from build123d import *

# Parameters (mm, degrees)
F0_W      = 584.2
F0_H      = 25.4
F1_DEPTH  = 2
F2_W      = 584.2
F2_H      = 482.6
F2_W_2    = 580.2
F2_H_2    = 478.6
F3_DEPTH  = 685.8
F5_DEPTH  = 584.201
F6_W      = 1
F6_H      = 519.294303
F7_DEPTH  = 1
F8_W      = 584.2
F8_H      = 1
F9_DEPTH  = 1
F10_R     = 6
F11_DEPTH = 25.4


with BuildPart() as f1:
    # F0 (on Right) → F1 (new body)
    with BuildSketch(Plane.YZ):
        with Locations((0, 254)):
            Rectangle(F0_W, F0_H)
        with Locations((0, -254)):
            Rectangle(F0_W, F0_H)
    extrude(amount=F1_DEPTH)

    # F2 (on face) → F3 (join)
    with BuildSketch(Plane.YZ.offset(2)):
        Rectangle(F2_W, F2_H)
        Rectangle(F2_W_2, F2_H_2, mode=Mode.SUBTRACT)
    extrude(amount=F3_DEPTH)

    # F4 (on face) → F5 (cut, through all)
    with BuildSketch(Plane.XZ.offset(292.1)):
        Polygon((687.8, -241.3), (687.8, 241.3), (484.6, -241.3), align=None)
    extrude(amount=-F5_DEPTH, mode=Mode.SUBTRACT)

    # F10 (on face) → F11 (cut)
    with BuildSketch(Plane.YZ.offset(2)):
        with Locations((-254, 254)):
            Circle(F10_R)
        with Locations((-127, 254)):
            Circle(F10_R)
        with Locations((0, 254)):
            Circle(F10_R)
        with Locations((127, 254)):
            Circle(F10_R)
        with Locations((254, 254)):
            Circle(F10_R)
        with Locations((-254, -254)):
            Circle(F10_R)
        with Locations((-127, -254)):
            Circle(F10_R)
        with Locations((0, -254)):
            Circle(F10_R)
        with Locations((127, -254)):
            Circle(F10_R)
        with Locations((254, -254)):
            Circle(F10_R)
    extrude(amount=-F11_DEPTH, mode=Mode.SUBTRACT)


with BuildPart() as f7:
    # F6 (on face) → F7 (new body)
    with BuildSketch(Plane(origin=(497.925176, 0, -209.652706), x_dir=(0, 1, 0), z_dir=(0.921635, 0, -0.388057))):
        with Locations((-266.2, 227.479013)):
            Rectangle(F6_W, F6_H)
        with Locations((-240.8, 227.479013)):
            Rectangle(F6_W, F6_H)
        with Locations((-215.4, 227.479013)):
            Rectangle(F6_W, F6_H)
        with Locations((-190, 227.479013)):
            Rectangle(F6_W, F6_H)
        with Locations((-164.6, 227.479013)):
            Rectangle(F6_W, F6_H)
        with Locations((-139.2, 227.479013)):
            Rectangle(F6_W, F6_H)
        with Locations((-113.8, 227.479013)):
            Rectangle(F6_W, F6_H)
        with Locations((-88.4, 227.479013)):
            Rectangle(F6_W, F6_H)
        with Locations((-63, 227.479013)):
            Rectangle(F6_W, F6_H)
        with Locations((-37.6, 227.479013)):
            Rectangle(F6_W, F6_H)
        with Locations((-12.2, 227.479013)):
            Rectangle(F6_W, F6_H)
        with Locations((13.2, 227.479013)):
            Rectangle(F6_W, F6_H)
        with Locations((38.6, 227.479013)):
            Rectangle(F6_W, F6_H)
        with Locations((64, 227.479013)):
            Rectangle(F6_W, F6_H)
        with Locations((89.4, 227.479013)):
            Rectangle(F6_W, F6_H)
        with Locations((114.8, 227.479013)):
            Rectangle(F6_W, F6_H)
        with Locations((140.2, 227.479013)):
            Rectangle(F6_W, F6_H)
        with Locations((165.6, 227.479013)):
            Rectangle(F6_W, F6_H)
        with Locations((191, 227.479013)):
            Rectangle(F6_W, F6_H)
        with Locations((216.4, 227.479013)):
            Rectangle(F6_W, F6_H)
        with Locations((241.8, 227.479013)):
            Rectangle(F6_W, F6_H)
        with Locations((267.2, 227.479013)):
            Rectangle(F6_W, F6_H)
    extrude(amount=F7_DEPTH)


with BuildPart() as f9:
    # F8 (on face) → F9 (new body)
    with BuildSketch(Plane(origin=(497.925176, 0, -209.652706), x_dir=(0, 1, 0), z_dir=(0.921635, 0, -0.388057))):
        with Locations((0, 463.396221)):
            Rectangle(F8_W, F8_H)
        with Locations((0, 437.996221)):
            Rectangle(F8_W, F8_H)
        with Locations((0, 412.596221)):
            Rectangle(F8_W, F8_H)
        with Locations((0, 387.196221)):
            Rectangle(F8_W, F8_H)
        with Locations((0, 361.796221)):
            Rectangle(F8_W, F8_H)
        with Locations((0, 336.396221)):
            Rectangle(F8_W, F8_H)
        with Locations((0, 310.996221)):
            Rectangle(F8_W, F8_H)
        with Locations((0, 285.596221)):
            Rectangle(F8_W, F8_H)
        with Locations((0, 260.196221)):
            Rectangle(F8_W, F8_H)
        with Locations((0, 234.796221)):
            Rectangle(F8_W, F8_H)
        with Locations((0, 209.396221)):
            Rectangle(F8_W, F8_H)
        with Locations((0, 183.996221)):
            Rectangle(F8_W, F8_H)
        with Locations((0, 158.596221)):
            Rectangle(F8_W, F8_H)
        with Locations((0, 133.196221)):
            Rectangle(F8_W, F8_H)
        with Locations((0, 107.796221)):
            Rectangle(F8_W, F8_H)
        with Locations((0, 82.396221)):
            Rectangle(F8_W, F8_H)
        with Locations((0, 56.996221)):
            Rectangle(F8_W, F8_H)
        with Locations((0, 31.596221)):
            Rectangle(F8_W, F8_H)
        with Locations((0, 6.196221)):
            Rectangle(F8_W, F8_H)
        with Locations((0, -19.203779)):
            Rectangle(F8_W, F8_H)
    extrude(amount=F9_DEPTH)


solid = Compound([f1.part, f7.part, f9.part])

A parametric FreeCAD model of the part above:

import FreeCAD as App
import Part
import Sketcher
Q = App.Units.Quantity


def add_polygon(sketch, points):
    """Adds a closed chain of lines whose ends are joined by coincident constraints."""
    first, n = sketch.GeometryCount, len(points)
    for a, b in zip(points, points[1:] + points[:1]):
        sketch.addGeometry(Part.LineSegment(App.Vector(*a, 0), App.Vector(*b, 0)), False)
    for i in range(n):
        sketch.addConstraint(Sketcher.Constraint("Coincident", first + i, 2, first + (i + 1) % n, 1))

doc = App.newDocument("Part")
params = doc.addObject("Spreadsheet::Sheet", "Params")
for row, (alias, value) in enumerate([
    ("sketch1_width", "584.2 mm"),
    ("sketch1_height", "25.4 mm"),
    ("pad1_length", "2 mm"),
    ("sketch2_width", "584.2 mm"),
    ("sketch2_width2", "580.2 mm"),
    ("sketch2_height", "482.6 mm"),
    ("sketch2_height2", "478.6 mm"),
    ("pad2_length", "685.8 mm"),
    ("sketch3_width", "203.2 mm"),
    ("sketch3_height", "482.6 mm"),
    ("sketch4_diameter", "12 mm"),
    ("pocket2_length", "25.4 mm"),
    ("sketch5_width", "1 mm"),
    ("pad3_length", "1 mm"),
    ("sketch6_height", "1 mm"),
    ("sketch6_width", "584.2 mm"),
    ("pad4_length", "1 mm"),
], start=1):
    params.set(f"A{row}", alias)
    params.set(f"B{row}", "=" + value)
    params.setAlias(f"B{row}", alias)

body = doc.addObject("PartDesign::Body", "Body")
body.AllowCompound = True

# Sketch on YZ plane
sketch1 = body.newObject("Sketcher::SketchObject", "Sketch")
sketch1.AttachmentSupport = (doc.getObject("YZ_Plane"), [""])
sketch1.MapMode = "FlatFace"
add_polygon(sketch1, [(-292.1, 266.7), (-292.1, 241.3), (292.1, 241.3), (292.1, 266.7)])  # lines 0-3
add_polygon(sketch1, [(-292.1, -241.3), (-292.1, -266.7), (292.1, -266.7), (292.1, -241.3)])  # lines 4-7
sketch1.addConstraint([
    Sketcher.Constraint("Vertical", 0),
    Sketcher.Constraint("Horizontal", 1),
    Sketcher.Constraint("Vertical", 2),
    Sketcher.Constraint("Horizontal", 3),
    Sketcher.Constraint("Vertical", 4),
    Sketcher.Constraint("Horizontal", 5),
    Sketcher.Constraint("Vertical", 6),
    Sketcher.Constraint("Horizontal", 7),
    Sketcher.Constraint("Symmetric", 2, 2, 4, 2, -1, 1),
    Sketcher.Constraint("Symmetric", 0, 2, 6, 2, -1, 1),
    Sketcher.Constraint("Vertical", 3, 2, 4, 2),
    Sketcher.Constraint("DistanceX", 1, 1, 1, 2, Q("584.2 mm")),
    Sketcher.Constraint("DistanceY", 0, 2, 0, 1, Q("25.4 mm")),
    Sketcher.Constraint("DistanceY", 4, 2, 0, 2, Q("508 mm")),
])
sketch1.setExpression("Constraints[19]", "Params.sketch1_width")
sketch1.setExpression("Constraints[20]", "Params.sketch1_height")
pad1 = body.newObject("PartDesign::Pad", "Pad")
pad1.Profile = sketch1
pad1.setExpression("Length", "Params.pad1_length")

# Sketch on YZ plane
sketch2 = body.newObject("Sketcher::SketchObject", "Sketch001")
sketch2.AttachmentSupport = (doc.getObject("YZ_Plane"), [""])
sketch2.MapMode = "FlatFace"
sketch2.AttachmentOffset = App.Placement(App.Vector(0, 0, 2), App.Rotation())
add_polygon(sketch2, [(-292.1, 241.3), (-292.1, -241.3), (292.1, -241.3), (292.1, 241.3)])  # lines 0-3
add_polygon(sketch2, [(290.1, -239.3), (-290.1, -239.3), (-290.1, 239.3), (290.1, 239.3)])  # lines 4-7
sketch2.addConstraint([
    Sketcher.Constraint("Vertical", 0),
    Sketcher.Constraint("Horizontal", 1),
    Sketcher.Constraint("Vertical", 2),
    Sketcher.Constraint("Horizontal", 3),
    Sketcher.Constraint("Horizontal", 4),
    Sketcher.Constraint("Vertical", 5),
    Sketcher.Constraint("Horizontal", 6),
    Sketcher.Constraint("Vertical", 7),
    Sketcher.Constraint("Symmetric", 0, 2, 2, 2, -1, 1),
    Sketcher.Constraint("Symmetric", 4, 2, 6, 2, -1, 1),
    Sketcher.Constraint("DistanceX", 1, 1, 1, 2, Q("584.2 mm")),
    Sketcher.Constraint("DistanceX", 4, 2, 4, 1, Q("580.2 mm")),
    Sketcher.Constraint("DistanceY", 0, 2, 0, 1, Q("482.6 mm")),
    Sketcher.Constraint("DistanceY", 5, 1, 5, 2, Q("478.6 mm")),
])
sketch2.setExpression("Constraints[18]", "Params.sketch2_width")
sketch2.setExpression("Constraints[19]", "Params.sketch2_width2")
sketch2.setExpression("Constraints[20]", "Params.sketch2_height")
sketch2.setExpression("Constraints[21]", "Params.sketch2_height2")
pad2 = body.newObject("PartDesign::Pad", "Pad001")
pad2.Profile = sketch2
pad2.setExpression("Length", "Params.pad2_length")

# Sketch on XZ plane
sketch3 = body.newObject("Sketcher::SketchObject", "Sketch002")
sketch3.AttachmentSupport = (doc.getObject("XZ_Plane"), [""])
sketch3.MapMode = "FlatFace"
sketch3.AttachmentOffset = App.Placement(App.Vector(0, 0, 292.1), App.Rotation())
add_polygon(sketch3, [(687.8, -241.3), (687.8, 241.3), (484.6, -241.3)])  # lines 0-2
sketch3.addConstraint([
    Sketcher.Constraint("Vertical", 0),
    Sketcher.Constraint("Horizontal", 2),
    Sketcher.Constraint("DistanceX", 2, 1, 2, 2, Q("203.2 mm")),
    Sketcher.Constraint("DistanceY", 0, 1, 0, 2, Q("482.6 mm")),
    Sketcher.Constraint("DistanceX", -1, 1, 0, 2, Q("687.8 mm")),
    Sketcher.Constraint("DistanceY", -1, 1, 0, 2, Q("241.3 mm")),
])
sketch3.setExpression("Constraints[5]", "Params.sketch3_width")
sketch3.setExpression("Constraints[6]", "Params.sketch3_height")
pocket1 = body.newObject("PartDesign::Pocket", "Pocket")
pocket1.Profile = sketch3
pocket1.Type = "ThroughAll"

# Sketch on YZ plane
sketch4 = body.newObject("Sketcher::SketchObject", "Sketch003")
sketch4.AttachmentSupport = (doc.getObject("YZ_Plane"), [""])
sketch4.MapMode = "FlatFace"
sketch4.AttachmentOffset = App.Placement(App.Vector(0, 0, 2), App.Rotation())
sketch4.addGeometry([
    Part.Circle(App.Vector(-254, 254, 0), App.Vector(0, 0, 1), 6),  # 0
    Part.Circle(App.Vector(-127, 254, 0), App.Vector(0, 0, 1), 6),  # 1
    Part.Circle(App.Vector(0, 254, 0), App.Vector(0, 0, 1), 6),  # 2
    Part.Circle(App.Vector(127, 254, 0), App.Vector(0, 0, 1), 6),  # 3
    Part.Circle(App.Vector(254, 254, 0), App.Vector(0, 0, 1), 6),  # 4
    Part.Circle(App.Vector(-254, -254, 0), App.Vector(0, 0, 1), 6),  # 5
    Part.Circle(App.Vector(-127, -254, 0), App.Vector(0, 0, 1), 6),  # 6
    Part.Circle(App.Vector(0, -254, 0), App.Vector(0, 0, 1), 6),  # 7
    Part.Circle(App.Vector(127, -254, 0), App.Vector(0, 0, 1), 6),  # 8
    Part.Circle(App.Vector(254, -254, 0), App.Vector(0, 0, 1), 6),  # 9
], False)
sketch4.addConstraint([
    Sketcher.Constraint("Equal", 0, 1),
    Sketcher.Constraint("Equal", 1, 2),
    Sketcher.Constraint("Equal", 2, 3),
    Sketcher.Constraint("Equal", 3, 4),
    Sketcher.Constraint("Equal", 4, 5),
    Sketcher.Constraint("Equal", 5, 6),
    Sketcher.Constraint("Equal", 6, 7),
    Sketcher.Constraint("Equal", 7, 8),
    Sketcher.Constraint("Equal", 8, 9),
    Sketcher.Constraint("Symmetric", 4, 3, 5, 3, -1, 1),
    Sketcher.Constraint("Symmetric", 3, 3, 6, 3, -1, 1),
    Sketcher.Constraint("Symmetric", 2, 3, 7, 3, -1, 1),
    Sketcher.Constraint("Symmetric", 1, 3, 8, 3, -1, 1),
    Sketcher.Constraint("Symmetric", 0, 3, 9, 3, -1, 1),
    Sketcher.Constraint("Symmetric", 1, 3, 3, 3, -2),
    Sketcher.Constraint("Symmetric", 0, 3, 4, 3, -2),
    Sketcher.Constraint("PointOnObject", 2, 3, -2),
    Sketcher.Constraint("Horizontal", 0, 3, 1, 3),
    Sketcher.Constraint("Horizontal", 1, 3, 2, 3),
    Sketcher.Constraint("Diameter", 0, Q("12 mm")),
    Sketcher.Constraint("DistanceX", 0, 3, -1, 1, Q("254 mm")),
    Sketcher.Constraint("DistanceY", -1, 1, 0, 3, Q("254 mm")),
    Sketcher.Constraint("DistanceX", 1, 3, -1, 1, Q("127 mm")),
])
sketch4.setExpression("Constraints[19]", "Params.sketch4_diameter")
pocket2 = body.newObject("PartDesign::Pocket", "Pocket001")
pocket2.Profile = sketch4
pocket2.setExpression("Length", "Params.pocket2_length")
body2 = doc.addObject("PartDesign::Body", "Body001")
body2.AllowCompound = True

# Sketch on an angled plane
sketch5 = body2.newObject("Sketcher::SketchObject", "Sketch004")
sketch5.Placement = App.Placement(App.Vector(497.925176, 0, -209.652706), App.Rotation(App.Vector(0, 1, 0), App.Vector(0.388057134, 0, 0.921635319), App.Vector(0.921635319, 0, -0.388057134), "ZXY"))
add_polygon(sketch5, [(-266.7, 487.126165), (-266.7, -32.168139), (-265.7, -32.168139), (-265.7, 487.126165)])  # lines 0-3
add_polygon(sketch5, [(-241.3, 487.126165), (-241.3, -32.168139), (-240.3, -32.168139), (-240.3, 487.126165)])  # lines 4-7
add_polygon(sketch5, [(-215.9, 487.126165), (-215.9, -32.168139), (-214.9, -32.168139), (-214.9, 487.126165)])  # lines 8-11
add_polygon(sketch5, [(-190.5, 487.126165), (-190.5, -32.168139), (-189.5, -32.168139), (-189.5, 487.126165)])  # lines 12-15
add_polygon(sketch5, [(-165.1, 487.126165), (-165.1, -32.168139), (-164.1, -32.168139), (-164.1, 487.126165)])  # lines 16-19
add_polygon(sketch5, [(-139.7, 487.126165), (-139.7, -32.168139), (-138.7, -32.168139), (-138.7, 487.126165)])  # lines 20-23
add_polygon(sketch5, [(-114.3, 487.126165), (-114.3, -32.168139), (-113.3, -32.168139), (-113.3, 487.126165)])  # lines 24-27
add_polygon(sketch5, [(-88.9, 487.126165), (-88.9, -32.168139), (-87.9, -32.168139), (-87.9, 487.126165)])  # lines 28-31
add_polygon(sketch5, [(-63.5, 487.126165), (-63.5, -32.168139), (-62.5, -32.168139), (-62.5, 487.126165)])  # lines 32-35
add_polygon(sketch5, [(-38.1, 487.126165), (-38.1, -32.168139), (-37.1, -32.168139), (-37.1, 487.126165)])  # lines 36-39
add_polygon(sketch5, [(-12.7, 487.126165), (-12.7, -32.168139), (-11.7, -32.168139), (-11.7, 487.126165)])  # lines 40-43
add_polygon(sketch5, [(12.7, 487.126165), (12.7, -32.168139), (13.7, -32.168139), (13.7, 487.126165)])  # lines 44-47
add_polygon(sketch5, [(38.1, 487.126165), (38.1, -32.168139), (39.1, -32.168139), (39.1, 487.126165)])  # lines 48-51
add_polygon(sketch5, [(63.5, 487.126165), (63.5, -32.168139), (64.5, -32.168139), (64.5, 487.126165)])  # lines 52-55
add_polygon(sketch5, [(88.9, 487.126165), (88.9, -32.168139), (89.9, -32.168139), (89.9, 487.126165)])  # lines 56-59
add_polygon(sketch5, [(114.3, 487.126165), (114.3, -32.168139), (115.3, -32.168139), (115.3, 487.126165)])  # lines 60-63
add_polygon(sketch5, [(139.7, 487.126165), (139.7, -32.168139), (140.7, -32.168139), (140.7, 487.126165)])  # lines 64-67
add_polygon(sketch5, [(165.1, 487.126165), (165.1, -32.168139), (166.1, -32.168139), (166.1, 487.126165)])  # lines 68-71
add_polygon(sketch5, [(190.5, 487.126165), (190.5, -32.168139), (191.5, -32.168139), (191.5, 487.126165)])  # lines 72-75
add_polygon(sketch5, [(215.9, 487.126165), (215.9, -32.168139), (216.9, -32.168139), (216.9, 487.126165)])  # lines 76-79
add_polygon(sketch5, [(241.3, 487.126165), (241.3, -32.168139), (242.3, -32.168139), (242.3, 487.126165)])  # lines 80-83
add_polygon(sketch5, [(266.7, 487.126165), (266.7, -32.168139), (267.7, -32.168139), (267.7, 487.126165)])  # lines 84-87
sketch5.addConstraint([
    Sketcher.Constraint("Vertical", 0),
    Sketcher.Constraint("Horizontal", 1),
    Sketcher.Constraint("Vertical", 2),
    Sketcher.Constraint("Horizontal", 3),
    Sketcher.Constraint("Vertical", 4),
    Sketcher.Constraint("Horizontal", 5),
    Sketcher.Constraint("Vertical", 6),
    Sketcher.Constraint("Horizontal", 7),
    Sketcher.Constraint("Vertical", 8),
    Sketcher.Constraint("Horizontal", 9),
    Sketcher.Constraint("Vertical", 10),
    Sketcher.Constraint("Horizontal", 11),
    Sketcher.Constraint("Vertical", 12),
    Sketcher.Constraint("Horizontal", 13),
    Sketcher.Constraint("Vertical", 14),
    Sketcher.Constraint("Horizontal", 15),
    Sketcher.Constraint("Vertical", 16),
    Sketcher.Constraint("Horizontal", 17),
    Sketcher.Constraint("Vertical", 18),
    Sketcher.Constraint("Horizontal", 19),
    Sketcher.Constraint("Vertical", 20),
    Sketcher.Constraint("Horizontal", 21),
    Sketcher.Constraint("Vertical", 22),
    Sketcher.Constraint("Horizontal", 23),
    Sketcher.Constraint("Vertical", 24),
    Sketcher.Constraint("Horizontal", 25),
    Sketcher.Constraint("Vertical", 26),
    Sketcher.Constraint("Horizontal", 27),
    Sketcher.Constraint("Vertical", 28),
    Sketcher.Constraint("Horizontal", 29),
    Sketcher.Constraint("Vertical", 30),
    Sketcher.Constraint("Horizontal", 31),
    Sketcher.Constraint("Vertical", 32),
    Sketcher.Constraint("Horizontal", 33),
    Sketcher.Constraint("Vertical", 34),
    Sketcher.Constraint("Horizontal", 35),
    Sketcher.Constraint("Vertical", 36),
    Sketcher.Constraint("Horizontal", 37),
    Sketcher.Constraint("Vertical", 38),
    Sketcher.Constraint("Horizontal", 39),
    Sketcher.Constraint("Vertical", 40),
    Sketcher.Constraint("Horizontal", 41),
    Sketcher.Constraint("Vertical", 42),
    Sketcher.Constraint("Horizontal", 43),
    Sketcher.Constraint("Vertical", 44),
    Sketcher.Constraint("Horizontal", 45),
    Sketcher.Constraint("Vertical", 46),
    Sketcher.Constraint("Horizontal", 47),
    Sketcher.Constraint("Vertical", 48),
    Sketcher.Constraint("Horizontal", 49),
    Sketcher.Constraint("Vertical", 50),
    Sketcher.Constraint("Horizontal", 51),
    Sketcher.Constraint("Vertical", 52),
    Sketcher.Constraint("Horizontal", 53),
    Sketcher.Constraint("Vertical", 54),
    Sketcher.Constraint("Horizontal", 55),
    Sketcher.Constraint("Vertical", 56),
    Sketcher.Constraint("Horizontal", 57),
    Sketcher.Constraint("Vertical", 58),
    Sketcher.Constraint("Horizontal", 59),
    Sketcher.Constraint("Vertical", 60),
    Sketcher.Constraint("Horizontal", 61),
    Sketcher.Constraint("Vertical", 62),
    Sketcher.Constraint("Horizontal", 63),
    Sketcher.Constraint("Vertical", 64),
    Sketcher.Constraint("Horizontal", 65),
    Sketcher.Constraint("Vertical", 66),
    Sketcher.Constraint("Horizontal", 67),
    Sketcher.Constraint("Vertical", 68),
    Sketcher.Constraint("Horizontal", 69),
    Sketcher.Constraint("Vertical", 70),
    Sketcher.Constraint("Horizontal", 71),
    Sketcher.Constraint("Vertical", 72),
    Sketcher.Constraint("Horizontal", 73),
    Sketcher.Constraint("Vertical", 74),
    Sketcher.Constraint("Horizontal", 75),
    Sketcher.Constraint("Vertical", 76),
    Sketcher.Constraint("Horizontal", 77),
    Sketcher.Constraint("Vertical", 78),
    Sketcher.Constraint("Horizontal", 79),
    Sketcher.Constraint("Vertical", 80),
    Sketcher.Constraint("Horizontal", 81),
    Sketcher.Constraint("Vertical", 82),
    Sketcher.Constraint("Horizontal", 83),
    Sketcher.Constraint("Vertical", 84),
    Sketcher.Constraint("Horizontal", 85),
    Sketcher.Constraint("Vertical", 86),
    Sketcher.Constraint("Horizontal", 87),
    Sketcher.Constraint("Symmetric", 40, 2, 44, 2, -2),
    Sketcher.Constraint("Symmetric", 36, 2, 48, 2, -2),
    Sketcher.Constraint("Symmetric", 32, 2, 52, 2, -2),
    Sketcher.Constraint("Symmetric", 28, 2, 56, 2, -2),
    Sketcher.Constraint("Symmetric", 24, 2, 60, 2, -2),
    Sketcher.Constraint("Symmetric", 20, 2, 64, 2, -2),
    Sketcher.Constraint("Symmetric", 16, 2, 68, 2, -2),
    Sketcher.Constraint("Symmetric", 12, 2, 72, 2, -2),
    Sketcher.Constraint("Symmetric", 8, 2, 76, 2, -2),
    Sketcher.Constraint("Symmetric", 4, 2, 80, 2, -2),
    Sketcher.Constraint("Symmetric", 0, 2, 84, 2, -2),
    Sketcher.Constraint("Horizontal", 1, 2, 4, 2),
    Sketcher.Constraint("Horizontal", 3, 2, 6, 2),
    Sketcher.Constraint("Horizontal", 5, 2, 8, 2),
    Sketcher.Constraint("Horizontal", 7, 2, 10, 2),
    Sketcher.Constraint("Horizontal", 9, 2, 12, 2),
    Sketcher.Constraint("Horizontal", 11, 2, 14, 2),
    Sketcher.Constraint("Horizontal", 13, 2, 16, 2),
    Sketcher.Constraint("Horizontal", 15, 2, 18, 2),
    Sketcher.Constraint("Horizontal", 17, 2, 20, 2),
    Sketcher.Constraint("Horizontal", 19, 2, 22, 2),
    Sketcher.Constraint("Horizontal", 21, 2, 24, 2),
    Sketcher.Constraint("Horizontal", 23, 2, 26, 2),
    Sketcher.Constraint("Horizontal", 25, 2, 28, 2),
    Sketcher.Constraint("Horizontal", 27, 2, 30, 2),
    Sketcher.Constraint("Horizontal", 29, 2, 32, 2),
    Sketcher.Constraint("Horizontal", 31, 2, 34, 2),
    Sketcher.Constraint("Horizontal", 33, 2, 36, 2),
    Sketcher.Constraint("Horizontal", 35, 2, 38, 2),
    Sketcher.Constraint("Horizontal", 37, 2, 40, 2),
    Sketcher.Constraint("Horizontal", 39, 2, 42, 2),
    Sketcher.Constraint("Horizontal", 43, 2, 46, 2),
    Sketcher.Constraint("Horizontal", 47, 2, 50, 2),
    Sketcher.Constraint("Horizontal", 51, 2, 54, 2),
    Sketcher.Constraint("Horizontal", 55, 2, 58, 2),
    Sketcher.Constraint("Horizontal", 59, 2, 62, 2),
    Sketcher.Constraint("Horizontal", 63, 2, 66, 2),
    Sketcher.Constraint("Horizontal", 67, 2, 70, 2),
    Sketcher.Constraint("Horizontal", 71, 2, 74, 2),
    Sketcher.Constraint("Horizontal", 75, 2, 78, 2),
    Sketcher.Constraint("Horizontal", 79, 2, 82, 2),
    Sketcher.Constraint("Horizontal", 83, 2, 86, 2),
    Sketcher.Constraint("Equal", 3, 5),
    Sketcher.Constraint("Equal", 7, 9),
    Sketcher.Constraint("Equal", 11, 13),
    Sketcher.Constraint("Equal", 15, 17),
    Sketcher.Constraint("Equal", 19, 21),
    Sketcher.Constraint("Equal", 23, 25),
    Sketcher.Constraint("Equal", 27, 29),
    Sketcher.Constraint("Equal", 31, 33),
    Sketcher.Constraint("Equal", 35, 37),
    Sketcher.Constraint("Equal", 39, 41),
    Sketcher.Constraint("Equal", 43, 45),
    Sketcher.Constraint("Equal", 47, 49),
    Sketcher.Constraint("Equal", 51, 53),
    Sketcher.Constraint("Equal", 55, 57),
    Sketcher.Constraint("Equal", 59, 61),
    Sketcher.Constraint("Equal", 63, 65),
    Sketcher.Constraint("Equal", 67, 69),
    Sketcher.Constraint("Equal", 71, 73),
    Sketcher.Constraint("Equal", 75, 77),
    Sketcher.Constraint("Equal", 79, 81),
    Sketcher.Constraint("Equal", 83, 85),
    Sketcher.Constraint("DistanceX", 1, 1, 1, 2, Q("1 mm")),
    Sketcher.Constraint("DistanceX", 0, 2, -1, 1, Q("266.7 mm")),
    Sketcher.Constraint("DistanceX", 4, 2, -1, 1, Q("241.3 mm")),
    Sketcher.Constraint("DistanceX", 8, 2, -1, 1, Q("215.9 mm")),
    Sketcher.Constraint("DistanceX", 12, 2, -1, 1, Q("190.5 mm")),
    Sketcher.Constraint("DistanceX", 16, 2, -1, 1, Q("165.1 mm")),
    Sketcher.Constraint("DistanceX", 20, 2, -1, 1, Q("139.7 mm")),
    Sketcher.Constraint("DistanceX", 24, 2, -1, 1, Q("114.3 mm")),
    Sketcher.Constraint("DistanceX", 28, 2, -1, 1, Q("88.9 mm")),
    Sketcher.Constraint("DistanceX", 32, 2, -1, 1, Q("63.5 mm")),
    Sketcher.Constraint("DistanceX", 36, 2, -1, 1, Q("38.1 mm")),
    Sketcher.Constraint("DistanceX", 40, 2, -1, 1, Q("12.7 mm")),
    Sketcher.Constraint("DistanceY", 0, 2, 0, 1, Q("519.294303 mm")),
    Sketcher.Constraint("DistanceY", 0, 2, -1, 1, Q("32.168139 mm")),
])
sketch5.setExpression("Constraints[239]", "Params.sketch5_width")
pad3 = body2.newObject("PartDesign::Pad", "Pad002")
pad3.Profile = sketch5
pad3.setExpression("Length", "Params.pad3_length")
body3 = doc.addObject("PartDesign::Body", "Body002")
body3.AllowCompound = True

# Sketch on an angled plane
sketch6 = body3.newObject("Sketcher::SketchObject", "Sketch005")
sketch6.Placement = App.Placement(App.Vector(497.925176, 0, -209.652706), App.Rotation(App.Vector(0, 1, 0), App.Vector(0.388057134, 0, 0.921635319), App.Vector(0.921635319, 0, -0.388057134), "ZXY"))
add_polygon(sketch6, [(-292.1, 463.896221), (-292.1, 462.896221), (292.1, 462.896221), (292.1, 463.896221)])  # lines 0-3
add_polygon(sketch6, [(-292.1, 438.496221), (-292.1, 437.496221), (292.1, 437.496221), (292.1, 438.496221)])  # lines 4-7
add_polygon(sketch6, [(-292.1, 413.096221), (-292.1, 412.096221), (292.1, 412.096221), (292.1, 413.096221)])  # lines 8-11
add_polygon(sketch6, [(-292.1, 387.696221), (-292.1, 386.696221), (292.1, 386.696221), (292.1, 387.696221)])  # lines 12-15
add_polygon(sketch6, [(-292.1, 362.296221), (-292.1, 361.296221), (292.1, 361.296221), (292.1, 362.296221)])  # lines 16-19
add_polygon(sketch6, [(-292.1, 336.896221), (-292.1, 335.896221), (292.1, 335.896221), (292.1, 336.896221)])  # lines 20-23
add_polygon(sketch6, [(-292.1, 311.496221), (-292.1, 310.496221), (292.1, 310.496221), (292.1, 311.496221)])  # lines 24-27
add_polygon(sketch6, [(-292.1, 286.096221), (-292.1, 285.096221), (292.1, 285.096221), (292.1, 286.096221)])  # lines 28-31
add_polygon(sketch6, [(-292.1, 260.696221), (-292.1, 259.696221), (292.1, 259.696221), (292.1, 260.696221)])  # lines 32-35
add_polygon(sketch6, [(-292.1, 235.296221), (-292.1, 234.296221), (292.1, 234.296221), (292.1, 235.296221)])  # lines 36-39
add_polygon(sketch6, [(-292.1, 209.896221), (-292.1, 208.896221), (292.1, 208.896221), (292.1, 209.896221)])  # lines 40-43
add_polygon(sketch6, [(-292.1, 184.496221), (-292.1, 183.496221), (292.1, 183.496221), (292.1, 184.496221)])  # lines 44-47
add_polygon(sketch6, [(-292.1, 159.096221), (-292.1, 158.096221), (292.1, 158.096221), (292.1, 159.096221)])  # lines 48-51
add_polygon(sketch6, [(-292.1, 133.696221), (-292.1, 132.696221), (292.1, 132.696221), (292.1, 133.696221)])  # lines 52-55
add_polygon(sketch6, [(-292.1, 108.296221), (-292.1, 107.296221), (292.1, 107.296221), (292.1, 108.296221)])  # lines 56-59
add_polygon(sketch6, [(-292.1, 82.896221), (-292.1, 81.896221), (292.1, 81.896221), (292.1, 82.896221)])  # lines 60-63
add_polygon(sketch6, [(-292.1, 57.496221), (-292.1, 56.496221), (292.1, 56.496221), (292.1, 57.496221)])  # lines 64-67
add_polygon(sketch6, [(-292.1, 32.096221), (-292.1, 31.096221), (292.1, 31.096221), (292.1, 32.096221)])  # lines 68-71
add_polygon(sketch6, [(-292.1, 6.696221), (-292.1, 5.696221), (292.1, 5.696221), (292.1, 6.696221)])  # lines 72-75
add_polygon(sketch6, [(-292.1, -18.703779), (-292.1, -19.703779), (292.1, -19.703779), (292.1, -18.703779)])  # lines 76-79
sketch6.addConstraint([
    Sketcher.Constraint("Vertical", 0),
    Sketcher.Constraint("Horizontal", 1),
    Sketcher.Constraint("Vertical", 2),
    Sketcher.Constraint("Horizontal", 3),
    Sketcher.Constraint("Vertical", 4),
    Sketcher.Constraint("Horizontal", 5),
    Sketcher.Constraint("Vertical", 6),
    Sketcher.Constraint("Horizontal", 7),
    Sketcher.Constraint("Vertical", 8),
    Sketcher.Constraint("Horizontal", 9),
    Sketcher.Constraint("Vertical", 10),
    Sketcher.Constraint("Horizontal", 11),
    Sketcher.Constraint("Vertical", 12),
    Sketcher.Constraint("Horizontal", 13),
    Sketcher.Constraint("Vertical", 14),
    Sketcher.Constraint("Horizontal", 15),
    Sketcher.Constraint("Vertical", 16),
    Sketcher.Constraint("Horizontal", 17),
    Sketcher.Constraint("Vertical", 18),
    Sketcher.Constraint("Horizontal", 19),
    Sketcher.Constraint("Vertical", 20),
    Sketcher.Constraint("Horizontal", 21),
    Sketcher.Constraint("Vertical", 22),
    Sketcher.Constraint("Horizontal", 23),
    Sketcher.Constraint("Vertical", 24),
    Sketcher.Constraint("Horizontal", 25),
    Sketcher.Constraint("Vertical", 26),
    Sketcher.Constraint("Horizontal", 27),
    Sketcher.Constraint("Vertical", 28),
    Sketcher.Constraint("Horizontal", 29),
    Sketcher.Constraint("Vertical", 30),
    Sketcher.Constraint("Horizontal", 31),
    Sketcher.Constraint("Vertical", 32),
    Sketcher.Constraint("Horizontal", 33),
    Sketcher.Constraint("Vertical", 34),
    Sketcher.Constraint("Horizontal", 35),
    Sketcher.Constraint("Vertical", 36),
    Sketcher.Constraint("Horizontal", 37),
    Sketcher.Constraint("Vertical", 38),
    Sketcher.Constraint("Horizontal", 39),
    Sketcher.Constraint("Vertical", 40),
    Sketcher.Constraint("Horizontal", 41),
    Sketcher.Constraint("Vertical", 42),
    Sketcher.Constraint("Horizontal", 43),
    Sketcher.Constraint("Vertical", 44),
    Sketcher.Constraint("Horizontal", 45),
    Sketcher.Constraint("Vertical", 46),
    Sketcher.Constraint("Horizontal", 47),
    Sketcher.Constraint("Vertical", 48),
    Sketcher.Constraint("Horizontal", 49),
    Sketcher.Constraint("Vertical", 50),
    Sketcher.Constraint("Horizontal", 51),
    Sketcher.Constraint("Vertical", 52),
    Sketcher.Constraint("Horizontal", 53),
    Sketcher.Constraint("Vertical", 54),
    Sketcher.Constraint("Horizontal", 55),
    Sketcher.Constraint("Vertical", 56),
    Sketcher.Constraint("Horizontal", 57),
    Sketcher.Constraint("Vertical", 58),
    Sketcher.Constraint("Horizontal", 59),
    Sketcher.Constraint("Vertical", 60),
    Sketcher.Constraint("Horizontal", 61),
    Sketcher.Constraint("Vertical", 62),
    Sketcher.Constraint("Horizontal", 63),
    Sketcher.Constraint("Vertical", 64),
    Sketcher.Constraint("Horizontal", 65),
    Sketcher.Constraint("Vertical", 66),
    Sketcher.Constraint("Horizontal", 67),
    Sketcher.Constraint("Vertical", 68),
    Sketcher.Constraint("Horizontal", 69),
    Sketcher.Constraint("Vertical", 70),
    Sketcher.Constraint("Horizontal", 71),
    Sketcher.Constraint("Vertical", 72),
    Sketcher.Constraint("Horizontal", 73),
    Sketcher.Constraint("Vertical", 74),
    Sketcher.Constraint("Horizontal", 75),
    Sketcher.Constraint("Vertical", 76),
    Sketcher.Constraint("Horizontal", 77),
    Sketcher.Constraint("Vertical", 78),
    Sketcher.Constraint("Horizontal", 79),
    Sketcher.Constraint("Vertical", 3, 2, 4, 2),
    Sketcher.Constraint("Vertical", 2, 2, 5, 2),
    Sketcher.Constraint("Vertical", 7, 2, 8, 2),
    Sketcher.Constraint("Vertical", 6, 2, 9, 2),
    Sketcher.Constraint("Vertical", 11, 2, 12, 2),
    Sketcher.Constraint("Vertical", 10, 2, 13, 2),
    Sketcher.Constraint("Vertical", 15, 2, 16, 2),
    Sketcher.Constraint("Vertical", 14, 2, 17, 2),
    Sketcher.Constraint("Vertical", 19, 2, 20, 2),
    Sketcher.Constraint("Vertical", 18, 2, 21, 2),
    Sketcher.Constraint("Vertical", 23, 2, 24, 2),
    Sketcher.Constraint("Vertical", 22, 2, 25, 2),
    Sketcher.Constraint("Vertical", 27, 2, 28, 2),
    Sketcher.Constraint("Vertical", 26, 2, 29, 2),
    Sketcher.Constraint("Vertical", 31, 2, 32, 2),
    Sketcher.Constraint("Vertical", 30, 2, 33, 2),
    Sketcher.Constraint("Vertical", 35, 2, 36, 2),
    Sketcher.Constraint("Vertical", 34, 2, 37, 2),
    Sketcher.Constraint("Vertical", 39, 2, 40, 2),
    Sketcher.Constraint("Vertical", 38, 2, 41, 2),
    Sketcher.Constraint("Vertical", 43, 2, 44, 2),
    Sketcher.Constraint("Vertical", 42, 2, 45, 2),
    Sketcher.Constraint("Vertical", 47, 2, 48, 2),
    Sketcher.Constraint("Vertical", 46, 2, 49, 2),
    Sketcher.Constraint("Vertical", 51, 2, 52, 2),
    Sketcher.Constraint("Vertical", 50, 2, 53, 2),
    Sketcher.Constraint("Vertical", 55, 2, 56, 2),
    Sketcher.Constraint("Vertical", 54, 2, 57, 2),
    Sketcher.Constraint("Vertical", 59, 2, 60, 2),
    Sketcher.Constraint("Vertical", 58, 2, 61, 2),
    Sketcher.Constraint("Vertical", 63, 2, 64, 2),
    Sketcher.Constraint("Vertical", 62, 2, 65, 2),
    Sketcher.Constraint("Vertical", 67, 2, 68, 2),
    Sketcher.Constraint("Vertical", 66, 2, 69, 2),
    Sketcher.Constraint("Vertical", 71, 2, 72, 2),
    Sketcher.Constraint("Vertical", 70, 2, 73, 2),
    Sketcher.Constraint("Vertical", 75, 2, 76, 2),
    Sketcher.Constraint("Vertical", 74, 2, 77, 2),
    Sketcher.Constraint("Equal", 2, 4),
    Sketcher.Constraint("Equal", 6, 8),
    Sketcher.Constraint("Equal", 10, 12),
    Sketcher.Constraint("Equal", 14, 16),
    Sketcher.Constraint("Equal", 18, 20),
    Sketcher.Constraint("Equal", 22, 24),
    Sketcher.Constraint("Equal", 26, 28),
    Sketcher.Constraint("Equal", 30, 32),
    Sketcher.Constraint("Equal", 34, 36),
    Sketcher.Constraint("Equal", 38, 40),
    Sketcher.Constraint("Equal", 42, 44),
    Sketcher.Constraint("Equal", 46, 48),
    Sketcher.Constraint("Equal", 50, 52),
    Sketcher.Constraint("Equal", 54, 56),
    Sketcher.Constraint("Equal", 58, 60),
    Sketcher.Constraint("Equal", 62, 64),
    Sketcher.Constraint("Equal", 66, 68),
    Sketcher.Constraint("Equal", 70, 72),
    Sketcher.Constraint("Equal", 74, 76),
    Sketcher.Constraint("DistanceY", 0, 2, 0, 1, Q("1 mm")),
    Sketcher.Constraint("DistanceX", 1, 1, 1, 2, Q("584.2 mm")),
    Sketcher.Constraint("DistanceX", 0, 2, -1, 1, Q("292.1 mm")),
    Sketcher.Constraint("DistanceY", -1, 1, 0, 2, Q("462.896221 mm")),
    Sketcher.Constraint("DistanceY", -1, 1, 4, 2, Q("437.496221 mm")),
    Sketcher.Constraint("DistanceY", -1, 1, 8, 2, Q("412.096221 mm")),
    Sketcher.Constraint("DistanceY", -1, 1, 12, 2, Q("386.696221 mm")),
    Sketcher.Constraint("DistanceY", -1, 1, 16, 2, Q("361.296221 mm")),
    Sketcher.Constraint("DistanceY", -1, 1, 20, 2, Q("335.896221 mm")),
    Sketcher.Constraint("DistanceY", -1, 1, 24, 2, Q("310.496221 mm")),
    Sketcher.Constraint("DistanceY", -1, 1, 28, 2, Q("285.096221 mm")),
    Sketcher.Constraint("DistanceY", -1, 1, 32, 2, Q("259.696221 mm")),
    Sketcher.Constraint("DistanceY", -1, 1, 36, 2, Q("234.296221 mm")),
    Sketcher.Constraint("DistanceY", -1, 1, 40, 2, Q("208.896221 mm")),
    Sketcher.Constraint("DistanceY", -1, 1, 44, 2, Q("183.496221 mm")),
    Sketcher.Constraint("DistanceY", -1, 1, 48, 2, Q("158.096221 mm")),
    Sketcher.Constraint("DistanceY", -1, 1, 52, 2, Q("132.696221 mm")),
    Sketcher.Constraint("DistanceY", -1, 1, 56, 2, Q("107.296221 mm")),
    Sketcher.Constraint("DistanceY", -1, 1, 60, 2, Q("81.896221 mm")),
    Sketcher.Constraint("DistanceY", -1, 1, 64, 2, Q("56.496221 mm")),
    Sketcher.Constraint("DistanceY", -1, 1, 68, 2, Q("31.096221 mm")),
    Sketcher.Constraint("DistanceY", -1, 1, 72, 2, Q("5.696221 mm")),
    Sketcher.Constraint("DistanceY", 76, 2, -1, 1, Q("19.703779 mm")),
])
sketch6.setExpression("Constraints[217]", "Params.sketch6_height")
sketch6.setExpression("Constraints[218]", "Params.sketch6_width")
pad4 = body3.newObject("PartDesign::Pad", "Pad003")
pad4.Profile = sketch6
pad4.setExpression("Length", "Params.pad4_length")

doc.recompute()
